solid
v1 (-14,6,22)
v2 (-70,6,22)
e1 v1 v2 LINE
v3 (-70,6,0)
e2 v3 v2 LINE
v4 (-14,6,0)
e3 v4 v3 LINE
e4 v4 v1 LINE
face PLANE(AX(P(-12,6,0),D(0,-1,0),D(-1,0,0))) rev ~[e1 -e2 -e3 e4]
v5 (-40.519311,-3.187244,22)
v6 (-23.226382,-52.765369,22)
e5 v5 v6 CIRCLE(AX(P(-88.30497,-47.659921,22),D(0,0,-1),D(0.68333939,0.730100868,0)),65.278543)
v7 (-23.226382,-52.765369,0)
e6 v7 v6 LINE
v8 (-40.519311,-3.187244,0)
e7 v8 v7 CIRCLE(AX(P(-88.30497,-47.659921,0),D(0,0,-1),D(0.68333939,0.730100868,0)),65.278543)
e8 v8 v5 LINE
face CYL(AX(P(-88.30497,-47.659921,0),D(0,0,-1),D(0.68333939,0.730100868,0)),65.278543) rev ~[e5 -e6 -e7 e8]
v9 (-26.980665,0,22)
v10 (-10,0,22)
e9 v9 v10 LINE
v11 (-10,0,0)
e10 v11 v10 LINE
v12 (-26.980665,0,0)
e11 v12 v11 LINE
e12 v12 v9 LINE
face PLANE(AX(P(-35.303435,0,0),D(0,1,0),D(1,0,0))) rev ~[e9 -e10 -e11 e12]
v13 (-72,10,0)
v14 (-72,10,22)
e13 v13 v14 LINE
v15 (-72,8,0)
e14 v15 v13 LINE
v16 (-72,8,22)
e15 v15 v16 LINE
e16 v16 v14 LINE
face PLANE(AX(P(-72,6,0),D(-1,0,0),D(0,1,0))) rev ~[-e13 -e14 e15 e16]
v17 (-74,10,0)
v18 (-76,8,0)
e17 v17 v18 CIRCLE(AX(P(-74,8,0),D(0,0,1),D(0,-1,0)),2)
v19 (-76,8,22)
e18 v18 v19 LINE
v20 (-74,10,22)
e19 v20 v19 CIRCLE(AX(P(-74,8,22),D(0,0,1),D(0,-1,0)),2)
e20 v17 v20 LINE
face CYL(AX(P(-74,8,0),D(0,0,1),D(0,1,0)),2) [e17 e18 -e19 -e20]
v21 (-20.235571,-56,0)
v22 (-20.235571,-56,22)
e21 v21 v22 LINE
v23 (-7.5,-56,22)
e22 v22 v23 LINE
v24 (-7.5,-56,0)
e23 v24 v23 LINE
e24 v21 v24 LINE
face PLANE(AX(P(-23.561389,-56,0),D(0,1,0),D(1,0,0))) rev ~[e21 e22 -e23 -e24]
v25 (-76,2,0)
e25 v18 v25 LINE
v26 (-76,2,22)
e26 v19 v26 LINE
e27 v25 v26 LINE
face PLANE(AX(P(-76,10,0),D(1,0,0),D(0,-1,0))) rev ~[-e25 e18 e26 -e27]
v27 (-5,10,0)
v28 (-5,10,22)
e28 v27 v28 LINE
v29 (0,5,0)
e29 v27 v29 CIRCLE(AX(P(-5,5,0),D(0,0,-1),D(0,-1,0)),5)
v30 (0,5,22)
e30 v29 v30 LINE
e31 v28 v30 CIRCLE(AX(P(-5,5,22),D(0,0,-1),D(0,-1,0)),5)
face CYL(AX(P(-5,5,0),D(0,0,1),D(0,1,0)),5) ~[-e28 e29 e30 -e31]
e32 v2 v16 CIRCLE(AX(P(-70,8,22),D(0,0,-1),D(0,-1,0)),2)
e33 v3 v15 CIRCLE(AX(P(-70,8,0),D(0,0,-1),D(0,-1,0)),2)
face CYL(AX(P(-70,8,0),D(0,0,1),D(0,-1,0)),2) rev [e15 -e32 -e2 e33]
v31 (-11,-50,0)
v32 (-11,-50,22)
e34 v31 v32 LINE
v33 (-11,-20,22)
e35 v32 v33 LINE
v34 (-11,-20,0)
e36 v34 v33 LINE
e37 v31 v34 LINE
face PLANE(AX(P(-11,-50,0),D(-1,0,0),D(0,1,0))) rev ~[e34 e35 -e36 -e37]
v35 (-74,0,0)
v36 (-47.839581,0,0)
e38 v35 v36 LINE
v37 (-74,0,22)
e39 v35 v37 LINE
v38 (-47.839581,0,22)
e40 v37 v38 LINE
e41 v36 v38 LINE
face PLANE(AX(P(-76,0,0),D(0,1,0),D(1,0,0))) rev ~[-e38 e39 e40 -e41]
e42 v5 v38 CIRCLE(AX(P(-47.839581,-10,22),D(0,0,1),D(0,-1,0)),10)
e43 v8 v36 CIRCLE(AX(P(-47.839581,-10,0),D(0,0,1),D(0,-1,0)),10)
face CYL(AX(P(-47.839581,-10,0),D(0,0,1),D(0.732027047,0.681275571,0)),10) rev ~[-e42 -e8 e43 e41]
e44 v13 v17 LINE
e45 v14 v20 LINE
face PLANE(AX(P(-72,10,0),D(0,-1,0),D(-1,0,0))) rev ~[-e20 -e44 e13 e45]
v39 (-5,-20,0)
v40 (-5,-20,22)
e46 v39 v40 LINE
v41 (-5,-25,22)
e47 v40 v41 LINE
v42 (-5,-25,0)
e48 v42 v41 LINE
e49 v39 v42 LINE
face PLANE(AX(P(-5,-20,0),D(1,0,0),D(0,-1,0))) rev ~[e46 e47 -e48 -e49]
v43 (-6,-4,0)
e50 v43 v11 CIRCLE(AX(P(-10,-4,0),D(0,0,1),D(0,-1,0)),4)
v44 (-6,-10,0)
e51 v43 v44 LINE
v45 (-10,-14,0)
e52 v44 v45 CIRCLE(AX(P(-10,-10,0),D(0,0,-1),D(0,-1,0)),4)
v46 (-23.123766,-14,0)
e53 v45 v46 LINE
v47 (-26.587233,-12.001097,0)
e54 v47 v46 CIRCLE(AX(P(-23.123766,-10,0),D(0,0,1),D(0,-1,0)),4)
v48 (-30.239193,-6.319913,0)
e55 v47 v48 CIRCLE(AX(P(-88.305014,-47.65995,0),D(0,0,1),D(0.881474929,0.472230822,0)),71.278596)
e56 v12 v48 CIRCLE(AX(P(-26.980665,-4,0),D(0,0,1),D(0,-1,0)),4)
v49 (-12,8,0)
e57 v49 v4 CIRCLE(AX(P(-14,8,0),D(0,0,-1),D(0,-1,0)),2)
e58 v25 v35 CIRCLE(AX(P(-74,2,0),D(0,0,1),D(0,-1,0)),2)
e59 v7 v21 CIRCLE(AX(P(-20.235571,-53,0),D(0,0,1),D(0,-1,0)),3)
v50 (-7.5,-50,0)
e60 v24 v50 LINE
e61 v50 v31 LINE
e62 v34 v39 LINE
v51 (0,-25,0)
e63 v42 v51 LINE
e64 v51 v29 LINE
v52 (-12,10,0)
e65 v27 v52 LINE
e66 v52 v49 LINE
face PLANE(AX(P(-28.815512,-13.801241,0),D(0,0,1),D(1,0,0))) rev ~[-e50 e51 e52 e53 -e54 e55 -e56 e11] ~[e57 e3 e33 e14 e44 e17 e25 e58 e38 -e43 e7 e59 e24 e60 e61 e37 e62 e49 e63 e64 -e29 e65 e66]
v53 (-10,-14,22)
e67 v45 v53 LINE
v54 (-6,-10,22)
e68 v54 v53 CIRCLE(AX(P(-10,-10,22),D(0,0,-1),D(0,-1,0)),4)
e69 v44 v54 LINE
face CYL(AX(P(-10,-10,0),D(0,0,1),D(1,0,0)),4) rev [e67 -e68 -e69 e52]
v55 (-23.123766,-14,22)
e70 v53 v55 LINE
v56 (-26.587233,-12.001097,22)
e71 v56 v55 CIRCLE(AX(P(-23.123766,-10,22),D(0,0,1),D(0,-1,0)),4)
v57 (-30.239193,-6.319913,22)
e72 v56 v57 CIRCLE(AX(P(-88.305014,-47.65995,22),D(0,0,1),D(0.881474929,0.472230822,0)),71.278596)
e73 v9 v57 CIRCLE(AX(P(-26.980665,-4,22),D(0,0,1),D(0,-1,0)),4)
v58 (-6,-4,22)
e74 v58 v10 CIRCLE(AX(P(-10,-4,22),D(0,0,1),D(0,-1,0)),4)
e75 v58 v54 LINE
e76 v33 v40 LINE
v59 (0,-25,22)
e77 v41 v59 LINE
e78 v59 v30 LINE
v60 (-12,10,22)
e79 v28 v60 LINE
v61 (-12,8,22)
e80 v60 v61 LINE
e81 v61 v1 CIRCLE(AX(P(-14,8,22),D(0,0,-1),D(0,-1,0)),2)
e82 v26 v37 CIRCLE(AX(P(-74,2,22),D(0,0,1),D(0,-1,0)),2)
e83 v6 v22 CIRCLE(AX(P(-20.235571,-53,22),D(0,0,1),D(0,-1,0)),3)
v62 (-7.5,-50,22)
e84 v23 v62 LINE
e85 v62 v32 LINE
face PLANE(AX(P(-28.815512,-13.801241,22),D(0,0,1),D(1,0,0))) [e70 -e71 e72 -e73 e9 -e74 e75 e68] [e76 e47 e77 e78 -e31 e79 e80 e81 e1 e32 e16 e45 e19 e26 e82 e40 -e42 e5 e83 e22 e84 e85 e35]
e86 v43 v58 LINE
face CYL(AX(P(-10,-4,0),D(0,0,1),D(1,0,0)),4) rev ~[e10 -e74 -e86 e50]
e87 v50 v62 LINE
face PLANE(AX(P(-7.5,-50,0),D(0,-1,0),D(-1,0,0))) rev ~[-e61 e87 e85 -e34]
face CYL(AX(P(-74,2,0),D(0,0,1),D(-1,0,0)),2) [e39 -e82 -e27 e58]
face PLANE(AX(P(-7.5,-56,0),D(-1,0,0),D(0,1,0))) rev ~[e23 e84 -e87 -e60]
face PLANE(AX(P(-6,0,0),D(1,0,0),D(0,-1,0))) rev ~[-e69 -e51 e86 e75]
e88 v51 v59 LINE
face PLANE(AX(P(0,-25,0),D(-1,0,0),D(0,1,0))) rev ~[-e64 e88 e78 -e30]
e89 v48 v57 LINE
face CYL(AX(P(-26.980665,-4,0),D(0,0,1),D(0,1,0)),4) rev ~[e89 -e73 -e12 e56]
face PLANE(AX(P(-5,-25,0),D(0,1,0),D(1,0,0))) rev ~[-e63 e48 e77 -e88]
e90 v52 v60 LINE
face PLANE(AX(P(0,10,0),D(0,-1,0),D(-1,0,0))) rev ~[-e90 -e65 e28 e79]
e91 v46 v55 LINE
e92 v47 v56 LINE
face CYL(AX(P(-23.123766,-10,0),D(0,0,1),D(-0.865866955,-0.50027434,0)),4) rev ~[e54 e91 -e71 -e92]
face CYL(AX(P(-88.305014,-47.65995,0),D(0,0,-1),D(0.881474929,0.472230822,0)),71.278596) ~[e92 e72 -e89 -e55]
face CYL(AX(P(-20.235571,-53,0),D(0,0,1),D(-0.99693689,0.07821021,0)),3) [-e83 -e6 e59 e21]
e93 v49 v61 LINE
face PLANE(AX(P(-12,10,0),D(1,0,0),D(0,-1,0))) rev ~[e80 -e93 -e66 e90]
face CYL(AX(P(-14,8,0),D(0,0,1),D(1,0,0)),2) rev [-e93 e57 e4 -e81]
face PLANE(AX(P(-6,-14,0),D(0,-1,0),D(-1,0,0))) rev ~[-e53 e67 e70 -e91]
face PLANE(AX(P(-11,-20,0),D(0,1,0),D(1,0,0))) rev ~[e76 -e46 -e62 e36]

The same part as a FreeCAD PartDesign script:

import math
import FreeCAD as App
import Part
import Sketcher

V = App.Vector


def edges_at(feature, points):
    """Names of the edges that pass closest to the given points."""
    edges = feature.Shape.Edges
    near = lambda p: min(range(len(edges)), key=lambda i: edges[i].distToShape(Part.Vertex(*p))[0])
    return sorted({f"Edge{near(p) + 1}" for p in points})

doc = App.newDocument("Part")
body = doc.addObject("PartDesign::Body", "Body")

# Sketch on XY plane
sketch1 = doc.addObject("Sketcher::SketchObject", "Sketch")
body.addObject(sketch1)
sketch1.AttachmentSupport = (doc.XY_Plane, [""])
sketch1.MapMode = "FlatFace"
sketch1.addGeometry(Part.ArcOfCircle(Part.Circle(V(-88.3, -47.7, 0), V(0, 0, 1), 65.3), math.radians(-7), math.radians(47)), False)
sketch1.addGeometry(Part.LineSegment(V(-23.6, -56, 0), V(-7.5, -56, 0)), False)
sketch1.addGeometry(Part.LineSegment(V(-7.5, -56, 0), V(-7.5, -50, 0)), False)
sketch1.addGeometry(Part.LineSegment(V(-7.5, -50, 0), V(-11, -50, 0)), False)
sketch1.addGeometry(Part.LineSegment(V(-11, -50, 0), V(-11, -20, 0)), False)
sketch1.addGeometry(Part.LineSegment(V(-11, -20, 0), V(-5, -20, 0)), False)
sketch1.addGeometry(Part.LineSegment(V(-5, -20, 0), V(-5, -25, 0)), False)
sketch1.addGeometry(Part.LineSegment(V(-5, -25, 0), V(0, -25, 0)), False)
sketch1.addGeometry(Part.LineSegment(V(0, -25, 0), V(0, 10, 0)), False)
sketch1.addGeometry(Part.LineSegment(V(0, 10, 0), V(-12, 10, 0)), False)
sketch1.addGeometry(Part.LineSegment(V(-12, 10, 0), V(-12, 6, 0)), False)
sketch1.addGeometry(Part.LineSegment(V(-12, 6, 0), V(-72, 6, 0)), False)
sketch1.addGeometry(Part.LineSegment(V(-72, 6, 0), V(-72, 10, 0)), False)
sketch1.addGeometry(Part.LineSegment(V(-72, 10, 0), V(-76, 10, 0)), False)
sketch1.addGeometry(Part.LineSegment(V(-76, 10, 0), V(-76, 0, 0)), False)
sketch1.addGeometry(Part.LineSegment(V(-76, 0, 0), V(-43.7, 0, 0)), False)
sketch1.addGeometry(Part.LineSegment(V(-6, 0, 0), V(-6, -14, 0)), False)
sketch1.addGeometry(Part.LineSegment(V(-6, -14, 0), V(-25.5, -14, 0)), False)
sketch1.addGeometry(Part.ArcOfCircle(Part.Circle(V(-88.3, -47.7, 0), V(0, 0, 1), 71.3), math.radians(28.18), math.radians(41.96)), False)
sketch1.addGeometry(Part.LineSegment(V(-35.3, 0, 0), V(-6, 0, 0)), False)
sketch1.addConstraint(Sketcher.Constraint("Coincident", 0, 1, 1, 1))
sketch1.addConstraint(Sketcher.Constraint("Coincident", 1, 2, 2, 1))
sketch1.addConstraint(Sketcher.Constraint("Coincident", 2, 2, 3, 1))
sketch1.addConstraint(Sketcher.Constraint("Coincident", 3, 2, 4, 1))
sketch1.addConstraint(Sketcher.Constraint("Coincident", 4, 2, 5, 1))
sketch1.addConstraint(Sketcher.Constraint("Coincident", 5, 2, 6, 1))
sketch1.addConstraint(Sketcher.Constraint("Coincident", 6, 2, 7, 1))
sketch1.addConstraint(Sketcher.Constraint("Coincident", 7, 2, 8, 1))
sketch1.addConstraint(Sketcher.Constraint("Coincident", 8, 2, 9, 1))
sketch1.addConstraint(Sketcher.Constraint("Coincident", 9, 2, 10, 1))
sketch1.addConstraint(Sketcher.Constraint("Coincident", 10, 2, 11, 1))
sketch1.addConstraint(Sketcher.Constraint("Coincident", 11, 2, 12, 1))
sketch1.addConstraint(Sketcher.Constraint("Coincident", 12, 2, 13, 1))
sketch1.addConstraint(Sketcher.Constraint("Coincident", 13, 2, 14, 1))
sketch1.addConstraint(Sketcher.Constraint("Coincident", 14, 2, 15, 1))
sketch1.addConstraint(Sketcher.Constraint("Coincident", 15, 2, 0, 2))
sketch1.addConstraint(Sketcher.Constraint("Coincident", 16, 2, 17, 1))
sketch1.addConstraint(Sketcher.Constraint("Coincident", 17, 2, 18, 1))
sketch1.addConstraint(Sketcher.Constraint("Coincident", 18, 2, 19, 1))
sketch1.addConstraint(Sketcher.Constraint("Coincident", 19, 2, 16, 1))
sketch1.addConstraint(Sketcher.Constraint("Horizontal", 1))
sketch1.addConstraint(Sketcher.Constraint("Vertical", 2))
sketch1.addConstraint(Sketcher.Constraint("Horizontal", 3))
sketch1.addConstraint(Sketcher.Constraint("Vertical", 4))
sketch1.addConstraint(Sketcher.Constraint("Horizontal", 5))
sketch1.addConstraint(Sketcher.Constraint("Vertical", 6))
sketch1.addConstraint(Sketcher.Constraint("Horizontal", 7))
sketch1.addConstraint(Sketcher.Constraint("Vertical", 8))
sketch1.addConstraint(Sketcher.Constraint("Horizontal", 9))
sketch1.addConstraint(Sketcher.Constraint("Vertical", 10))
sketch1.addConstraint(Sketcher.Constraint("Horizontal", 11))
sketch1.addConstraint(Sketcher.Constraint("Vertical", 12))
sketch1.addConstraint(Sketcher.Constraint("Horizontal", 13))
sketch1.addConstraint(Sketcher.Constraint("Vertical", 14))
sketch1.addConstraint(Sketcher.Constraint("Horizontal", 15))
sketch1.addConstraint(Sketcher.Constraint("Vertical", 16))
sketch1.addConstraint(Sketcher.Constraint("Horizontal", 17))
sketch1.addConstraint(Sketcher.Constraint("Horizontal", 19))
sketch1.addConstraint(Sketcher.Constraint("PointOnObject", 7, 2, -2))
sketch1.addConstraint(Sketcher.Constraint("PointOnObject", 14, 2, -1))
sketch1.addConstraint(Sketcher.Constraint("PointOnObject", 18, 2, -1))
sketch1.addConstraint(Sketcher.Constraint("Horizontal", 9, 2, 12, 2))
sketch1.addConstraint(Sketcher.Constraint("Equal", 5, 2))
sketch1.addConstraint(Sketcher.Constraint("Equal", 7, 6))
sketch1.addConstraint(Sketcher.Constraint("Equal", 13, 10))
sketch1.addConstraint(Sketcher.Constraint("DistanceX", 5, 1, 5, 2, 6.0))
sketch1.addConstraint(Sketcher.Constraint("DistanceX", 7, 1, 7, 2, 5.0))
sketch1.addConstraint(Sketcher.Constraint("DistanceX", 9, 2, 9, 1, 12.0))
sketch1.addConstraint(Sketcher.Constraint("DistanceX", 11, 2, 11, 1, 60.0))
sketch1.addConstraint(Sketcher.Constraint("DistanceX", 13, 2, 13, 1, 4.0))
sketch1.addConstraint(Sketcher.Constraint("DistanceY", 4, 1, 4, 2, 30.0))
sketch1.addConstraint(Sketcher.Constraint("DistanceY", 8, 1, 8, 2, 35.0))
sketch1.addConstraint(Sketcher.Constraint("DistanceY", 14, 2, 14, 1, 10.0))
sketch1.addConstraint(Sketcher.Constraint("DistanceY", 16, 2, 16, 1, 14.0))
sketch1.addConstraint(Sketcher.Constraint("DistanceX", 3, 2, 3, 1, 3.5))
sketch1.addConstraint(Sketcher.Constraint("DistanceX", 16, 2, -1, 1, 6.0))
sketch1.addConstraint(Sketcher.Constraint("Radius", 0, 65.278543))
sketch1.addConstraint(Sketcher.Constraint("Radius", 18, 71.278596))
sketch1.addConstraint(Sketcher.Constraint("DistanceX", 1, 1, 1, 2, 16.061389))
sketch1.addConstraint(Sketcher.Constraint("DistanceX", 15, 1, 15, 2, 32.30243))
sketch1.addConstraint(Sketcher.Constraint("DistanceX", 17, 2, 17, 1, 19.474719))
sketch1.addConstraint(Sketcher.Constraint("DistanceX", 19, 1, 19, 2, 29.303435))
pad1 = doc.addObject("PartDesign::Pad", "Pad")
body.addObject(pad1)
pad1.Profile = sketch1
pad1.Length = 22
doc.recompute()

fillet = doc.addObject("PartDesign::Fillet", "Fillet")
body.addObject(fillet)
fillet.Base = (pad1, edges_at(pad1, [(-43.698, 0, 11)]))
fillet.Radius = 10
doc.recompute()

fillet2 = doc.addObject("PartDesign::Fillet", "Fillet001")
body.addObject(fillet2)
fillet2.Base = (fillet, edges_at(fillet, [(-23.561, -56, 11)]))
fillet2.Radius = 3
doc.recompute()

fillet3 = doc.addObject("PartDesign::Fillet", "Fillet002")
body.addObject(fillet3)
fillet3.Base = (fillet2, edges_at(fillet2, [
    (-35.303, 0, 11),
    (-6, 0, 11),
    (-25.475, -14, 11),
    (-6, -14, 11),
]))
fillet3.Radius = 4
doc.recompute()

fillet4 = doc.addObject("PartDesign::Fillet", "Fillet003")
body.addObject(fillet4)
fillet4.Base = (fillet3, edges_at(fillet3, [(0, 10, 11)]))
fillet4.Radius = 5
doc.recompute()

fillet5 = doc.addObject("PartDesign::Fillet", "Fillet004")
body.addObject(fillet5)
fillet5.Base = (fillet4, edges_at(fillet4, [(-12, 6, 11), (-72, 6, 11)]))
fillet5.Radius = 2
doc.recompute()

fillet6 = doc.addObject("PartDesign::Fillet", "Fillet005")
body.addObject(fillet6)
fillet6.Base = (fillet5, edges_at(fillet5, [(-76, 10, 11), (-76, 0, 11)]))
fillet6.Radius = 2

doc.recompute()
